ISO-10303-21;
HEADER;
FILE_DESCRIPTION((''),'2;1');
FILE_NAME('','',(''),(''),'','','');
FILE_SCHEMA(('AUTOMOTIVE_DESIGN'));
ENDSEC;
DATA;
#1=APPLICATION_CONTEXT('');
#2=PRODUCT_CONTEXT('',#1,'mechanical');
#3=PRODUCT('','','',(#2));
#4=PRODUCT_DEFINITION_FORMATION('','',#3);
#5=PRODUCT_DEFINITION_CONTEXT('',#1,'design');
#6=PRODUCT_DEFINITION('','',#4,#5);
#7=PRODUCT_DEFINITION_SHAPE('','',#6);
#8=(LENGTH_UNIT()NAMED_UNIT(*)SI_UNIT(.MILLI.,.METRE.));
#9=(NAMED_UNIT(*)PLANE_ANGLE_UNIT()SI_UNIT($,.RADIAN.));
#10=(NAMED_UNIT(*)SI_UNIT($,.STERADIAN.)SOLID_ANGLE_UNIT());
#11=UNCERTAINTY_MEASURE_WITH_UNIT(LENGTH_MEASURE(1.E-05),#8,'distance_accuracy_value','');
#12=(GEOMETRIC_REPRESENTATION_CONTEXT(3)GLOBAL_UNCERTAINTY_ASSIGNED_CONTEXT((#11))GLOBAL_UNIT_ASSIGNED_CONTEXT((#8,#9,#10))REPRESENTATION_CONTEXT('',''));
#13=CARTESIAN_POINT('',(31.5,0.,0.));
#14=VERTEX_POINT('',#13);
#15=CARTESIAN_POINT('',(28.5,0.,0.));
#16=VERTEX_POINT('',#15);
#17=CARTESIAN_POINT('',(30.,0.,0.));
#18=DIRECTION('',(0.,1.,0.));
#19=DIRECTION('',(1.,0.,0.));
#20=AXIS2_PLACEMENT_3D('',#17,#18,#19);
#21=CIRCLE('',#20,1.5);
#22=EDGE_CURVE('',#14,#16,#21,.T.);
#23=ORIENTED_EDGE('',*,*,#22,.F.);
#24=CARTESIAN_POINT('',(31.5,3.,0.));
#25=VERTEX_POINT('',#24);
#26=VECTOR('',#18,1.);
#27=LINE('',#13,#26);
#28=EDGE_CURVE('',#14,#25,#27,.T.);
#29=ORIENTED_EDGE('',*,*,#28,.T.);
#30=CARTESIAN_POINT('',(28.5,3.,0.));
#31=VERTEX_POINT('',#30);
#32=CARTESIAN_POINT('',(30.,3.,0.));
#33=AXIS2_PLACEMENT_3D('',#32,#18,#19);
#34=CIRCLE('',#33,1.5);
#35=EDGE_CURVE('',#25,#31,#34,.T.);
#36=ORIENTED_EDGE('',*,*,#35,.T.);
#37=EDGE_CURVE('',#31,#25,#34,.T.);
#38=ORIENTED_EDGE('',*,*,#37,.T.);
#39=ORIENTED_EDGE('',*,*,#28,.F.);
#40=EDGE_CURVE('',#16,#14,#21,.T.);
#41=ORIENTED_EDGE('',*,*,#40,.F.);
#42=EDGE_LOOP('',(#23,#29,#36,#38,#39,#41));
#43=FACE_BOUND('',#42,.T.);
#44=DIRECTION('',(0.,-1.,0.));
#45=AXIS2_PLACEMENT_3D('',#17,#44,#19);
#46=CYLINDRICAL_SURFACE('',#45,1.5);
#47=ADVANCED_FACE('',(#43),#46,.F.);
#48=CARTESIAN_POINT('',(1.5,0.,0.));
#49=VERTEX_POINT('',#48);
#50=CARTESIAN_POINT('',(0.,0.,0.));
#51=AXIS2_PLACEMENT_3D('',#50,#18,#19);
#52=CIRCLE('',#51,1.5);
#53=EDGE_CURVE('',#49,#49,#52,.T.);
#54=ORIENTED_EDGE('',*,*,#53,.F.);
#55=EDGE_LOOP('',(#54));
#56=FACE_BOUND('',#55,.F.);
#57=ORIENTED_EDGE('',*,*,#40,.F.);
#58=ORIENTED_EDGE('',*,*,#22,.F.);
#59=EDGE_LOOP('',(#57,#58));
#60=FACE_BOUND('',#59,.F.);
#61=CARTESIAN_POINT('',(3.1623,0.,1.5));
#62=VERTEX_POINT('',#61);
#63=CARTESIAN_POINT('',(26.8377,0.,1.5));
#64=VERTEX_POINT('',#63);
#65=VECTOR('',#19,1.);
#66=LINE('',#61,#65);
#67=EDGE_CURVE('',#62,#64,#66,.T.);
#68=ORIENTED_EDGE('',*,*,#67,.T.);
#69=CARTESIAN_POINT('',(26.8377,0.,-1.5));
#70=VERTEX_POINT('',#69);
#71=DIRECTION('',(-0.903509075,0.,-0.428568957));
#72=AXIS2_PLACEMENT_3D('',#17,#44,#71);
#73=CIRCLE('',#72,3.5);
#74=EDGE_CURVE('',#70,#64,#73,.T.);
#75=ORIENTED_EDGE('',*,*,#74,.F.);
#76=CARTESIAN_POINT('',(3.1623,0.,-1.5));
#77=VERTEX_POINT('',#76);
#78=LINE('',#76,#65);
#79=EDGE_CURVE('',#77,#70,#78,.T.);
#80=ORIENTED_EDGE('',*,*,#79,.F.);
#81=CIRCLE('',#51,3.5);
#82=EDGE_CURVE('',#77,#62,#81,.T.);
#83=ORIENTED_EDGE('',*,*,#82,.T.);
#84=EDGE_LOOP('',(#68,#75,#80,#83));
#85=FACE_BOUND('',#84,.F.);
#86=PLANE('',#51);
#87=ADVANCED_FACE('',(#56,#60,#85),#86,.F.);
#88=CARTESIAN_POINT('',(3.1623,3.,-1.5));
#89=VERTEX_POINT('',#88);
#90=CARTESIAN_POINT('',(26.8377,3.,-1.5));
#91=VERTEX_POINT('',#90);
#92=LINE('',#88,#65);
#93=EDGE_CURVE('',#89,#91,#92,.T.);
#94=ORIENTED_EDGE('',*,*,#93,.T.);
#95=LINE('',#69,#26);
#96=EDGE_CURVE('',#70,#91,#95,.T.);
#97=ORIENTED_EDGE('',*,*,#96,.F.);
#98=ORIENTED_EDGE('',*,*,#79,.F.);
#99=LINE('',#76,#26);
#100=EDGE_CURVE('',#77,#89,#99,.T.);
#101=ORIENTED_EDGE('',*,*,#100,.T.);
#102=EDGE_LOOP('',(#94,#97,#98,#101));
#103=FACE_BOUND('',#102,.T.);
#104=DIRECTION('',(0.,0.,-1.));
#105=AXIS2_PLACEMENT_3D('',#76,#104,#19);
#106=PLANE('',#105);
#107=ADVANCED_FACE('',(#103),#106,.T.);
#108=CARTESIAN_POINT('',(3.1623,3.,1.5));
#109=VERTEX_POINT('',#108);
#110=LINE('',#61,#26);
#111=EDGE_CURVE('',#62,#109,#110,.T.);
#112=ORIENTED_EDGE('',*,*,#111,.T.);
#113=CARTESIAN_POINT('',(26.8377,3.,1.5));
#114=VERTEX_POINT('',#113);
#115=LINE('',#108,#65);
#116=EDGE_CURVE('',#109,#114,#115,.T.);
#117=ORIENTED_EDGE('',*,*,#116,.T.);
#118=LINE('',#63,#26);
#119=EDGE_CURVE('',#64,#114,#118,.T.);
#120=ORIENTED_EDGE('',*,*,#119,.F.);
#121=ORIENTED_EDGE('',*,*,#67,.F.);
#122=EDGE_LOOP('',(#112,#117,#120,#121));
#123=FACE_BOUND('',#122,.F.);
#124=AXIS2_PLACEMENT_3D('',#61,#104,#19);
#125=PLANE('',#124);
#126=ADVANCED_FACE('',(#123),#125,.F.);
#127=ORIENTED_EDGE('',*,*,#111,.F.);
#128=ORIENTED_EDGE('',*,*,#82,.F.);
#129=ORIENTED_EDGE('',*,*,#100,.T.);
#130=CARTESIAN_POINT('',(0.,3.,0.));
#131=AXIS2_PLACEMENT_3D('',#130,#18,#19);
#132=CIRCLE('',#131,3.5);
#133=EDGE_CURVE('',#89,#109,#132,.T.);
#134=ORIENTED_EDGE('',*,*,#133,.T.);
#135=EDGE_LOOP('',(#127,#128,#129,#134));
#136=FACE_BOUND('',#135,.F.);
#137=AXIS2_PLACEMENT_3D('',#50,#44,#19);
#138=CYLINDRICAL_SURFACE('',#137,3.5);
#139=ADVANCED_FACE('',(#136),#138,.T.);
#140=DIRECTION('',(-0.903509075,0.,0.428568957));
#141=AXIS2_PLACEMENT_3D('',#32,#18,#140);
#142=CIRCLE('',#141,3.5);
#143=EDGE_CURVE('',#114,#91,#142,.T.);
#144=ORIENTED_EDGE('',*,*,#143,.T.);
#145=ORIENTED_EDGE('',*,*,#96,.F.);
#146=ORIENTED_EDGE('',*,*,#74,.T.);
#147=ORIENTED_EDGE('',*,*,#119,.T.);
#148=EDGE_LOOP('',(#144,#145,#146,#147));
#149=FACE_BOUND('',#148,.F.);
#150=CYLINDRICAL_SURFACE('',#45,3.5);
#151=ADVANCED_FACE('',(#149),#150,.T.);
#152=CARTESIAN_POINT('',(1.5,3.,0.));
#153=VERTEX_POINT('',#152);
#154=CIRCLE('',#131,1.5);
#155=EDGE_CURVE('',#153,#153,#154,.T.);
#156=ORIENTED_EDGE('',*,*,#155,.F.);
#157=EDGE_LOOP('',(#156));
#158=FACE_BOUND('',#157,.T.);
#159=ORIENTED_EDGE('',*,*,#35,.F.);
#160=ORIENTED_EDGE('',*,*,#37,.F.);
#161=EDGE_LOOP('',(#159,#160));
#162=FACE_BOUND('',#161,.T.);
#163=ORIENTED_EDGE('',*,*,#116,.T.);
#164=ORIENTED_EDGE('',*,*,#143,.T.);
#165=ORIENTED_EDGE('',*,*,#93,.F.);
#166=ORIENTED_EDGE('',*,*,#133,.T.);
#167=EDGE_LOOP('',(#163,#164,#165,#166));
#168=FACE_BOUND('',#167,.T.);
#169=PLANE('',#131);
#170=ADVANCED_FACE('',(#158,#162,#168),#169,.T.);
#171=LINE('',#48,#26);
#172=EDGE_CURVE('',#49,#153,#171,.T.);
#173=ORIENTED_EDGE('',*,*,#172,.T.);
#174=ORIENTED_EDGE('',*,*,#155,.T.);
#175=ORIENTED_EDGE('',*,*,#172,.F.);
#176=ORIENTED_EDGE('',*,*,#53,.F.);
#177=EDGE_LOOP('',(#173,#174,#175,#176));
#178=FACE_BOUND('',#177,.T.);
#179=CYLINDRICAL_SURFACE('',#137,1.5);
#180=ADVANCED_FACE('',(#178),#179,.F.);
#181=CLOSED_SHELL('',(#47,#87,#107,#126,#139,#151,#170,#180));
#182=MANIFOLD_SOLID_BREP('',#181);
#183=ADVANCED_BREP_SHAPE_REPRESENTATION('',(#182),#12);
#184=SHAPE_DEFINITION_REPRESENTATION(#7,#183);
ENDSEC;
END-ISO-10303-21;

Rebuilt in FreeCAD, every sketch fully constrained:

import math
import FreeCAD as App
import Part
import Sketcher

V = App.Vector

doc = App.newDocument("Part")
body = doc.addObject("PartDesign::Body", "Body")

# Sketch on XZ plane
sketch1 = doc.addObject("Sketcher::SketchObject", "Sketch")
body.addObject(sketch1)
sketch1.AttachmentSupport = (doc.XZ_Plane, [""])
sketch1.MapMode = "FlatFace"
sketch1.addGeometry([
    Part.ArcOfCircle(Part.Circle(V(0, 0, 0), V(0, 0, 1), 3.5), math.radians(25), math.radians(335)),  # 0
    Part.LineSegment(V(3.2, 1.5, 0), V(26.8, 1.5, 0)),  # 1
    Part.ArcOfCircle(Part.Circle(V(30, 0, 0), V(0, 0, 1), 3.5), math.radians(-155), math.radians(155)),  # 2
    Part.LineSegment(V(26.8, -1.5, 0), V(3.2, -1.5, 0)),  # 3
    Part.Circle(V(0, 0, 0), V(0, 0, 1), 1.5),  # 4
    Part.Circle(V(30, 0, 0), V(0, 0, 1), 1.5),  # 5
], False)
sketch1.addConstraint([
    Sketcher.Constraint("Coincident", 0, 1, 1, 1),
    Sketcher.Constraint("Coincident", 1, 2, 2, 2),
    Sketcher.Constraint("Coincident", 2, 1, 3, 1),
    Sketcher.Constraint("Coincident", 3, 2, 0, 2),
    Sketcher.Constraint("Horizontal", 1),
    Sketcher.Constraint("Horizontal", 3),
    Sketcher.Constraint("Coincident", 0, 3, -1, 1),
    Sketcher.Constraint("Coincident", 4, 3, -1, 1),
    Sketcher.Constraint("Coincident", 5, 3, 2, 3),
    Sketcher.Constraint("Equal", 0, 2),
    Sketcher.Constraint("Equal", 4, 5),
    Sketcher.Constraint("Symmetric", 1, 2, 2, 1, -1),
    Sketcher.Constraint("Diameter", 4, 3.0),
    Sketcher.Constraint("Radius", 0, 3.5),
    Sketcher.Constraint("DistanceX", -1, 1, 2, 3, 30.0),
    Sketcher.Constraint("DistanceY", 2, 1, 1, 2, 3.0),
])
pad1 = doc.addObject("PartDesign::Pad", "Pad")
body.addObject(pad1)
pad1.Profile = sketch1
pad1.Length = 3
pad1.Reversed = True

doc.recompute()
